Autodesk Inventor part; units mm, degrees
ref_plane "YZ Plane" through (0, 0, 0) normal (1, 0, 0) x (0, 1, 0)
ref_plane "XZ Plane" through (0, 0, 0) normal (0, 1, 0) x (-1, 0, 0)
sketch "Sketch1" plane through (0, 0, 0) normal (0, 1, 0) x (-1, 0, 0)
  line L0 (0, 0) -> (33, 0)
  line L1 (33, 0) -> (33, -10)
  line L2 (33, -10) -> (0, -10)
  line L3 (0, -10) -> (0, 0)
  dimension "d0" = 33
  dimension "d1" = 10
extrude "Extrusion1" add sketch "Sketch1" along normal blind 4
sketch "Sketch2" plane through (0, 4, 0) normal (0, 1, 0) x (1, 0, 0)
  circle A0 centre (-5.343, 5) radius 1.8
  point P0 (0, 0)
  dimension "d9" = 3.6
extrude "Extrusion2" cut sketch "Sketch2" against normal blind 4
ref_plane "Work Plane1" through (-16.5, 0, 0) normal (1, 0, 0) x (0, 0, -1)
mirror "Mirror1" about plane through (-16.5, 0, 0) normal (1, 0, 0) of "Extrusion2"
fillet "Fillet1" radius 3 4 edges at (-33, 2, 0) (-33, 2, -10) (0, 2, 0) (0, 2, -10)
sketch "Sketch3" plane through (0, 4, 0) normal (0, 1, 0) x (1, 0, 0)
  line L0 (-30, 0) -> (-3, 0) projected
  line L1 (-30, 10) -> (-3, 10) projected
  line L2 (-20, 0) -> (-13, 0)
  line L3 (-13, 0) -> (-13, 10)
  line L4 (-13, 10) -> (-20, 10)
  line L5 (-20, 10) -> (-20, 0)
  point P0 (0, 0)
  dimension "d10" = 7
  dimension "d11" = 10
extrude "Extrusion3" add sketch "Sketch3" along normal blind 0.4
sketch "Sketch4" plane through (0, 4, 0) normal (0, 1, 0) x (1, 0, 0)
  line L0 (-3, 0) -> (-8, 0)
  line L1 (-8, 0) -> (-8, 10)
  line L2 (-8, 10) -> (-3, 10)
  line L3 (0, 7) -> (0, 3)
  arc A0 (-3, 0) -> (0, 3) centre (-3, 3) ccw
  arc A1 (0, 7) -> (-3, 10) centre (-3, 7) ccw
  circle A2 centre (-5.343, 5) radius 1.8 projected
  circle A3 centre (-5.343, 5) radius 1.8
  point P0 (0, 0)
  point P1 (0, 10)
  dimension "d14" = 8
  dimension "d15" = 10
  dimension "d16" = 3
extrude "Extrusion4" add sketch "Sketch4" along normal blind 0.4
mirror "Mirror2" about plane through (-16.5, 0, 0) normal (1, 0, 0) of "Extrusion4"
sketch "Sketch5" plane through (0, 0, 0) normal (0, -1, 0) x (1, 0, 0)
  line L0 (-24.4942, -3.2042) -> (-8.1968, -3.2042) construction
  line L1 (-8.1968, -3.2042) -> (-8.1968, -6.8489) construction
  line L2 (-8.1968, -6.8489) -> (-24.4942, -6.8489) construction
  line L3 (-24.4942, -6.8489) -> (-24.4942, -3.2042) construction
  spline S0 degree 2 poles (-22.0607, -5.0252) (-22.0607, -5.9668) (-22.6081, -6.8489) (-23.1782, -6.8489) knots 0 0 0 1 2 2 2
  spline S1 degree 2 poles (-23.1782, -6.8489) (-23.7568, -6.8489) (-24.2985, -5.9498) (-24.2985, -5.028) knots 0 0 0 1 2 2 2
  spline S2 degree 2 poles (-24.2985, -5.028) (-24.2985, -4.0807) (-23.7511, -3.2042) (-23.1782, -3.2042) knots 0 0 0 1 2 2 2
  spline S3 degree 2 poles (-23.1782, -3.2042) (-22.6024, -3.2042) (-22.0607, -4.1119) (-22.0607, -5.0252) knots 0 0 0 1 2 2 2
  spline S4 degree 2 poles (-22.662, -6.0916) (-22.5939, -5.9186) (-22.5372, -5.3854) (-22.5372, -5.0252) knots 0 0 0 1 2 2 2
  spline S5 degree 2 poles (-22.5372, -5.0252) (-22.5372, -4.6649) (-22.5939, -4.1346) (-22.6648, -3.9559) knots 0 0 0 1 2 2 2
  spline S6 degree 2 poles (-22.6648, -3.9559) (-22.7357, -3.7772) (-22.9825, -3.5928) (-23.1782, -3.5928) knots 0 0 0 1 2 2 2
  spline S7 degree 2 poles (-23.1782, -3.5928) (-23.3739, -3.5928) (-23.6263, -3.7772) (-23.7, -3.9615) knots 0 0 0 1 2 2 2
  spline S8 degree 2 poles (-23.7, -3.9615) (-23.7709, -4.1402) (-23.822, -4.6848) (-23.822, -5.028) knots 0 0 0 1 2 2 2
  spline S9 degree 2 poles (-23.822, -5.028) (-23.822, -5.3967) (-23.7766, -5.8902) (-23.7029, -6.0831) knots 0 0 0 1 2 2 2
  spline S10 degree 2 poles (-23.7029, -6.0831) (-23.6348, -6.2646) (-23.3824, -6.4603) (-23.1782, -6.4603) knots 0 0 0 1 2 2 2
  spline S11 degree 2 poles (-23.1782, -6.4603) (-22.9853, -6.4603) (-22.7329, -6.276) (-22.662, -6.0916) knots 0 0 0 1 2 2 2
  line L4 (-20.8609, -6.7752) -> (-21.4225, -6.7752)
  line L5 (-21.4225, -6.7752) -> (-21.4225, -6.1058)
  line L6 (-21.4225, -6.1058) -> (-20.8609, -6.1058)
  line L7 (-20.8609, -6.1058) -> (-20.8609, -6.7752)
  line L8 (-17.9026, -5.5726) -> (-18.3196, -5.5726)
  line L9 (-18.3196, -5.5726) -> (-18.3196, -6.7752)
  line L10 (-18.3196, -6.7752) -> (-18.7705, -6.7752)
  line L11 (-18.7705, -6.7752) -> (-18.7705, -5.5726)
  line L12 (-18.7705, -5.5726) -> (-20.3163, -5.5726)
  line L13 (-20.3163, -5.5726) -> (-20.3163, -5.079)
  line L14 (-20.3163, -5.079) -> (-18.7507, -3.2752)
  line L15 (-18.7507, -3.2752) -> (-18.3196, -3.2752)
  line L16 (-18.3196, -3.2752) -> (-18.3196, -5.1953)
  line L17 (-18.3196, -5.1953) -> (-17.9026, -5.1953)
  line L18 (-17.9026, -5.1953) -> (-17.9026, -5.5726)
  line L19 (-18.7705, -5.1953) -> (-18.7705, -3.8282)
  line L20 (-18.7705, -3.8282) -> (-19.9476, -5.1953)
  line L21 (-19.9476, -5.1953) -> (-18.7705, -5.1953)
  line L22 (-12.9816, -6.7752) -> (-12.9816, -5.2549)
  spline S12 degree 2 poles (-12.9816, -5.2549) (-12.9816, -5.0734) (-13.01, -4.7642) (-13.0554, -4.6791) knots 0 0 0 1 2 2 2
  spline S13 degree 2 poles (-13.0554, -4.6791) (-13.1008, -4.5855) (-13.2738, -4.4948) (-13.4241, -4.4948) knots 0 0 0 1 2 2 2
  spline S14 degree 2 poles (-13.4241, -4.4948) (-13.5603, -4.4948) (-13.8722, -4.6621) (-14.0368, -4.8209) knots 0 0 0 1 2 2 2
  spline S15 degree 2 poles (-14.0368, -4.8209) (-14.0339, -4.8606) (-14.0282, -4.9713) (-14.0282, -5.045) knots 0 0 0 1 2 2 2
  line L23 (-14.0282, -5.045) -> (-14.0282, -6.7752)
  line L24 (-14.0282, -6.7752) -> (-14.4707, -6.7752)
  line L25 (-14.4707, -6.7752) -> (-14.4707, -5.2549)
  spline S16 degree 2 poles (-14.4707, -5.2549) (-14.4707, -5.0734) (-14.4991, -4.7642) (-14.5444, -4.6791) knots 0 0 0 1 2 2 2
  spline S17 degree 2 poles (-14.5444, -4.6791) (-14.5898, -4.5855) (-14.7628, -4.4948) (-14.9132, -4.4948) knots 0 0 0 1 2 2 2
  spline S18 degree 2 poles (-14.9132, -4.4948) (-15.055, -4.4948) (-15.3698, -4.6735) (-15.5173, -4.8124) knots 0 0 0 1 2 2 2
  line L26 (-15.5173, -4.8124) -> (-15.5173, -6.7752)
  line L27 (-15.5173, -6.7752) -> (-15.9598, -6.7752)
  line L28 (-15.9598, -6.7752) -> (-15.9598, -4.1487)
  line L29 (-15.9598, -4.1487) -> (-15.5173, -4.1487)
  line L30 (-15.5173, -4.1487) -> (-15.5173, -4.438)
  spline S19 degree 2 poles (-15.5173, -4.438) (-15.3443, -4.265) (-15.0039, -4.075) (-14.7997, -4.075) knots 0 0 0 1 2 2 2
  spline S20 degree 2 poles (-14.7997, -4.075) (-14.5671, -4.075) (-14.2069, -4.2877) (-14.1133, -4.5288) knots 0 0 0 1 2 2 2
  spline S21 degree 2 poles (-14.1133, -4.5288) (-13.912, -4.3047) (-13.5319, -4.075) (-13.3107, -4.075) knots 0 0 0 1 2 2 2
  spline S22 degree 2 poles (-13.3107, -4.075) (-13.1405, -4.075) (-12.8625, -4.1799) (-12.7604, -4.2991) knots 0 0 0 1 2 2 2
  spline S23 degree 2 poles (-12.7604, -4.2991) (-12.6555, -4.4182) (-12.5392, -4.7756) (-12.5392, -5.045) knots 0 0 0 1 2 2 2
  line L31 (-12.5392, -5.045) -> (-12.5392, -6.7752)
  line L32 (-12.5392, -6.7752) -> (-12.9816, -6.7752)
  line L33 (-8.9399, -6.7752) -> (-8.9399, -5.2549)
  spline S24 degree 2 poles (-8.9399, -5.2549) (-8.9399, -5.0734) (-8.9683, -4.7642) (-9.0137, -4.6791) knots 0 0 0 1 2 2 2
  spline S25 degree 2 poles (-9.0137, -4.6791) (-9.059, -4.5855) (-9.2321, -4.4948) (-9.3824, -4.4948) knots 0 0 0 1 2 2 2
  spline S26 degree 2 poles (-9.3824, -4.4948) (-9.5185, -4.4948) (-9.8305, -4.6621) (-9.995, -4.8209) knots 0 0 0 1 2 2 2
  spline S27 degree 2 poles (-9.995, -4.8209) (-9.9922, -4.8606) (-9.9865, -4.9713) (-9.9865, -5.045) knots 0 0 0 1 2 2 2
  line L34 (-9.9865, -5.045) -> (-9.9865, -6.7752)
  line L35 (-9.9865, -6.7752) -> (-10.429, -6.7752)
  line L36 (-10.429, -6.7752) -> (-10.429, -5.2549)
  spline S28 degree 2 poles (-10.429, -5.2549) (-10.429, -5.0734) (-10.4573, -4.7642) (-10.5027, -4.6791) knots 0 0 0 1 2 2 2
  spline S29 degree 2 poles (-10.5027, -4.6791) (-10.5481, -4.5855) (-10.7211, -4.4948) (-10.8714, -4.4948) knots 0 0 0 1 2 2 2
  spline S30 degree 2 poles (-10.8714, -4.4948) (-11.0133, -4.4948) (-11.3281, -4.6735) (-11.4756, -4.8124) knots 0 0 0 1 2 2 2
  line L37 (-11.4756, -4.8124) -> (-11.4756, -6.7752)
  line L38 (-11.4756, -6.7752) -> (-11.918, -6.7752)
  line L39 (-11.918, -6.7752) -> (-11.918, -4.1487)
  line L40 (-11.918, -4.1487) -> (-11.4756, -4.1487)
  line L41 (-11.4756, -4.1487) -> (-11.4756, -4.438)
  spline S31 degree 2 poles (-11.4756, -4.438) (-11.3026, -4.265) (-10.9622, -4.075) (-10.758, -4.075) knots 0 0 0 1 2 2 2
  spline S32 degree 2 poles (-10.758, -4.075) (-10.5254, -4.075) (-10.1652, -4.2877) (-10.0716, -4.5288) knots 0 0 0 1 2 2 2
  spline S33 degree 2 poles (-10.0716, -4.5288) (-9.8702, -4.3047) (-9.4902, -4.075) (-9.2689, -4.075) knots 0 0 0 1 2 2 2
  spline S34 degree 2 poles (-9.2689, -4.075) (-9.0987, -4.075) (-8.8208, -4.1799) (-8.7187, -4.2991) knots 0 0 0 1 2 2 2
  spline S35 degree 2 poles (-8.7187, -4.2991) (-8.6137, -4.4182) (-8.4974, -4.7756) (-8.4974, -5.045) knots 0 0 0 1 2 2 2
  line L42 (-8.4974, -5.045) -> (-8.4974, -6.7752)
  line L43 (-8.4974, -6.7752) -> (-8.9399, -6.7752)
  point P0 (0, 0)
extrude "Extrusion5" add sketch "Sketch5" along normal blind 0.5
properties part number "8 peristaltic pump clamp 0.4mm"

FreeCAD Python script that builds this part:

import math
import FreeCAD as App
import Part
import Sketcher
from FreeCAD import Vector
Q = App.Units.Quantity


def edges_at(feature, points):
    """Names of the edges that pass closest to the given points."""
    edges = feature.Shape.Edges
    near = lambda p: min(range(len(edges)), key=lambda i: edges[i].distToShape(Part.Vertex(*p))[0])
    return sorted({f"Edge{near(p) + 1}" for p in points})


def add_polygon(sketch, points):
    """Adds a closed chain of lines whose ends are joined by coincident constraints."""
    first, n = sketch.GeometryCount, len(points)
    for a, b in zip(points, points[1:] + points[:1]):
        sketch.addGeometry(Part.LineSegment(App.Vector(*a, 0), App.Vector(*b, 0)), False)
    for i in range(n):
        sketch.addConstraint(Sketcher.Constraint("Coincident", first + i, 2, first + (i + 1) % n, 1))

doc = App.newDocument("Part")
params = doc.addObject("Spreadsheet::Sheet", "Params")
for row, (alias, value) in enumerate([
    ("sketch1_width", "33 mm"),
    ("sketch1_height", "10 mm"),
    ("pad1_length", "4 mm"),
    ("sketch2_diameter", "3.6 mm"),
    ("pocket1_length", "4 mm"),
    ("fillet_radius", "3 mm"),
    ("sketch3_width", "7 mm"),
    ("sketch3_height", "10 mm"),
    ("pad2_length", "0.4 mm"),
    ("sketch4_radius", "3 mm"),
    ("sketch4_height", "10 mm"),
    ("sketch4_diameter", "3.6 mm"),
    ("pad3_length", "0.4 mm"),
    ("sketch5_height", "1.92 mm"),
    ("pad4_length", "0.5 mm"),
], start=1):
    params.set(f"A{row}", alias)
    params.set(f"B{row}", "=" + value)
    params.setAlias(f"B{row}", alias)

body = doc.addObject("PartDesign::Body", "Body")

# Sketch on XZ plane
sketch1 = body.newObject("Sketcher::SketchObject", "Sketch")
sketch1.AttachmentSupport = (doc.getObject("XZ_Plane"), [""])
sketch1.MapMode = "FlatFace"
add_polygon(sketch1, [(-33, 0), (0, 0), (0, -10), (-33, -10)])  # lines 0-3
sketch1.addConstraint([
    Sketcher.Constraint("Horizontal", 0),
    Sketcher.Constraint("Vertical", 1),
    Sketcher.Constraint("Horizontal", 2),
    Sketcher.Constraint("Vertical", 3),
    Sketcher.Constraint("Coincident", 0, 2, -1, 1),
    Sketcher.Constraint("DistanceX", 0, 1, 0, 2, Q("33 mm")),
    Sketcher.Constraint("DistanceY", 1, 2, 1, 1, Q("10 mm")),
])
sketch1.setExpression("Constraints[9]", "Params.sketch1_width")
sketch1.setExpression("Constraints[10]", "Params.sketch1_height")
pad1 = body.newObject("PartDesign::Pad", "Pad")
pad1.Profile = sketch1
pad1.setExpression("Length", "Params.pad1_length")
pad1.Reversed = True

# Sketch on XZ plane
sketch2 = body.newObject("Sketcher::SketchObject", "Sketch001")
sketch2.AttachmentSupport = (doc.getObject("XZ_Plane"), [""])
sketch2.MapMode = "FlatFace"
sketch2.AttachmentOffset = App.Placement(Vector(0, 0, -4), App.Rotation())
sketch2.addGeometry(Part.Circle(Vector(-5.3, -5, 0), Vector(0, 0, 1), 1.8), False)
sketch2.addConstraint([
    Sketcher.Constraint("Diameter", 0, Q("3.6 mm")),
    Sketcher.Constraint("DistanceY", 0, 3, -1, 1, Q("5 mm")),
    Sketcher.Constraint("DistanceX", 0, 3, -1, 1, Q("5.343 mm")),
])
sketch2.setExpression("Constraints[0]", "Params.sketch2_diameter")
pocket1 = body.newObject("PartDesign::Pocket", "Pocket")
pocket1.Profile = sketch2
pocket1.setExpression("Length", "Params.pocket1_length")
pocket1.Reversed = True
doc.recompute()

datumplane = body.newObject("PartDesign::Plane", "DatumPlane")
datumplane.AttachmentSupport = (doc.getObject("YZ_Plane"), [""])
datumplane.MapMode = "FlatFace"
datumplane.AttachmentOffset = App.Placement(Vector(0, 0, -16.5), App.Rotation())
mirrored = body.newObject("PartDesign::Mirrored", "Mirrored")
mirrored.Originals = [pocket1]
mirrored.MirrorPlane = (datumplane, [""])
body.Tip = mirrored
doc.recompute()

fillet = body.newObject("PartDesign::Fillet", "Fillet")
fillet.Base = (mirrored, edges_at(mirrored, [
    (-33, 2, 0),
    (-33, 2, -10),
    (0, 2, 0),
    (0, 2, -10),
]))
fillet.setExpression("Radius", "Params.fillet_radius")

# Sketch on XZ plane
sketch3 = body.newObject("Sketcher::SketchObject", "Sketch002")
sketch3.AttachmentSupport = (doc.getObject("XZ_Plane"), [""])
sketch3.MapMode = "FlatFace"
sketch3.AttachmentOffset = App.Placement(Vector(0, 0, -4), App.Rotation())
add_polygon(sketch3, [(-20, -10), (-20, 0), (-13, 0), (-13, -10)])  # lines 0-3
sketch3.addConstraint([
    Sketcher.Constraint("Vertical", 0),
    Sketcher.Constraint("Horizontal", 1),
    Sketcher.Constraint("Vertical", 2),
    Sketcher.Constraint("Horizontal", 3),
    Sketcher.Constraint("PointOnObject", 0, 2, -1),
    Sketcher.Constraint("DistanceX", 1, 1, 1, 2, Q("7 mm")),
    Sketcher.Constraint("DistanceY", 0, 1, 0, 2, Q("10 mm")),
    Sketcher.Constraint("DistanceX", 0, 2, -1, 1, Q("20 mm")),
])
sketch3.setExpression("Constraints[9]", "Params.sketch3_width")
sketch3.setExpression("Constraints[10]", "Params.sketch3_height")
pad2 = body.newObject("PartDesign::Pad", "Pad001")
pad2.Profile = sketch3
pad2.setExpression("Length", "Params.pad2_length")
pad2.Reversed = True

# Sketch on XZ plane
sketch4 = body.newObject("Sketcher::SketchObject", "Sketch003")
sketch4.AttachmentSupport = (doc.getObject("XZ_Plane"), [""])
sketch4.MapMode = "FlatFace"
sketch4.AttachmentOffset = App.Placement(Vector(0, 0, -4), App.Rotation())
sketch4.addGeometry([
    Part.LineSegment(Vector(-8, 0, 0), Vector(-3, 0, 0)),  # 0
    Part.ArcOfCircle(Part.Circle(Vector(-3, -3, 0), Vector(0, 0, 1), 3), math.radians(0), math.radians(90)),  # 1
    Part.LineSegment(Vector(0, -3, 0), Vector(0, -7, 0)),  # 2
    Part.ArcOfCircle(Part.Circle(Vector(-3, -7, 0), Vector(0, 0, 1), 3), math.radians(-90), math.radians(0)),  # 3
    Part.LineSegment(Vector(-3, -10, 0), Vector(-8, -10, 0)),  # 4
    Part.LineSegment(Vector(-8, -10, 0), Vector(-8, 0, 0)),  # 5
    Part.Circle(Vector(-5.3, -5, 0), Vector(0, 0, 1), 1.8),  # 6
], False)
sketch4.addConstraint([
    Sketcher.Constraint("Tangent", 0, 2, 1, 2),
    Sketcher.Constraint("Tangent", 1, 1, 2, 1),
    Sketcher.Constraint("Tangent", 2, 2, 3, 2),
    Sketcher.Constraint("Tangent", 3, 1, 4, 1),
    Sketcher.Constraint("Coincident", 4, 2, 5, 1),
    Sketcher.Constraint("Coincident", 5, 2, 0, 1),
    Sketcher.Constraint("Horizontal", 0),
    Sketcher.Constraint("Vertical", 2),
    Sketcher.Constraint("Horizontal", 4),
    Sketcher.Constraint("Vertical", 5),
    Sketcher.Constraint("Equal", 1, 3),
    Sketcher.Constraint("PointOnObject", 0, 2, -1),
    Sketcher.Constraint("PointOnObject", 1, 1, -2),
    Sketcher.Constraint("Radius", 1, Q("3 mm")),
    Sketcher.Constraint("DistanceY", 5, 1, 5, 2, Q("10 mm")),
    Sketcher.Constraint("DistanceX", 4, 2, -1, 1, Q("8 mm")),
    Sketcher.Constraint("Diameter", 6, Q("3.6 mm")),
    Sketcher.Constraint("DistanceY", 6, 3, -1, 1, Q("5 mm")),
    Sketcher.Constraint("DistanceX", 6, 3, -1, 1, Q("5.343 mm")),
])
sketch4.setExpression("Constraints[13]", "Params.sketch4_radius")
sketch4.setExpression("Constraints[14]", "Params.sketch4_height")
sketch4.setExpression("Constraints[16]", "Params.sketch4_diameter")
pad3 = body.newObject("PartDesign::Pad", "Pad002")
pad3.Profile = sketch4
pad3.setExpression("Length", "Params.pad3_length")
pad3.Reversed = True
doc.recompute()

datumplane2 = body.newObject("PartDesign::Plane", "DatumPlane001")
datumplane2.AttachmentSupport = (doc.getObject("YZ_Plane"), [""])
datumplane2.MapMode = "FlatFace"
datumplane2.AttachmentOffset = App.Placement(Vector(0, 0, -16.5), App.Rotation())
mirrored2 = body.newObject("PartDesign::Mirrored", "Mirrored001")
mirrored2.Originals = [pad3]
mirrored2.MirrorPlane = (datumplane2, [""])
body.Tip = mirrored2

# Sketch on XZ plane
sketch5 = body.newObject("Sketcher::SketchObject", "Sketch004")
sketch5.AttachmentSupport = (doc.getObject("XZ_Plane"), [""])
sketch5.MapMode = "FlatFace"
sketch5.addGeometry(Part.BSplineCurve([Vector(-22.0607, -5.0252, 0), Vector(-22.0607, -5.9668, 0), Vector(-22.6081, -6.8489, 0), Vector(-23.1782, -6.8489, 0)], [3, 1, 3], [0, 1, 2], False, 2, [1, 1, 1, 1], False), False)  # 0
sketch5.addGeometry(Part.BSplineCurve([Vector(-23.1782, -3.2042, 0), Vector(-22.6024, -3.2042, 0), Vector(-22.0607, -4.1119, 0), Vector(-22.0607, -5.0252, 0)], [3, 1, 3], [0, 1, 2], False, 2, [1, 1, 1, 1], False), False)  # 1
sketch5.addGeometry(Part.BSplineCurve([Vector(-24.2985, -5.028, 0), Vector(-24.2985, -4.0807, 0), Vector(-23.7511, -3.2042, 0), Vector(-23.1782, -3.2042, 0)], [3, 1, 3], [0, 1, 2], False, 2, [1, 1, 1, 1], False), False)  # 2
sketch5.addGeometry(Part.BSplineCurve([Vector(-23.1782, -6.8489, 0), Vector(-23.7568, -6.8489, 0), Vector(-24.2985, -5.9498, 0), Vector(-24.2985, -5.028, 0)], [3, 1, 3], [0, 1, 2], False, 2, [1, 1, 1, 1], False), False)  # 3
sketch5.addGeometry(Part.BSplineCurve([Vector(-22.662, -6.0916, 0), Vector(-22.5939, -5.9186, 0), Vector(-22.5372, -5.3854, 0), Vector(-22.5372, -5.0252, 0)], [3, 1, 3], [0, 1, 2], False, 2, [1, 1, 1, 1], False), False)  # 4
sketch5.addGeometry(Part.BSplineCurve([Vector(-23.1782, -6.4603, 0), Vector(-22.9853, -6.4603, 0), Vector(-22.7329, -6.276, 0), Vector(-22.662, -6.0916, 0)], [3, 1, 3], [0, 1, 2], False, 2, [1, 1, 1, 1], False), False)  # 5
sketch5.addGeometry(Part.BSplineCurve([Vector(-23.7029, -6.0831, 0), Vector(-23.6348, -6.2646, 0), Vector(-23.3824, -6.4603, 0), Vector(-23.1782, -6.4603, 0)], [3, 1, 3], [0, 1, 2], False, 2, [1, 1, 1, 1], False), False)  # 6
sketch5.addGeometry(Part.BSplineCurve([Vector(-23.822, -5.028, 0), Vector(-23.822, -5.3967, 0), Vector(-23.7766, -5.8902, 0), Vector(-23.7029, -6.0831, 0)], [3, 1, 3], [0, 1, 2], False, 2, [1, 1, 1, 1], False), False)  # 7
sketch5.addGeometry(Part.BSplineCurve([Vector(-23.7, -3.9615, 0), Vector(-23.7709, -4.1402, 0), Vector(-23.822, -4.6848, 0), Vector(-23.822, -5.028, 0)], [3, 1, 3], [0, 1, 2], False, 2, [1, 1, 1, 1], False), False)  # 8
sketch5.addGeometry(Part.BSplineCurve([Vector(-23.1782, -3.5928, 0), Vector(-23.3739, -3.5928, 0), Vector(-23.6263, -3.7772, 0), Vector(-23.7, -3.9615, 0)], [3, 1, 3], [0, 1, 2], False, 2, [1, 1, 1, 1], False), False)  # 9
sketch5.addGeometry(Part.BSplineCurve([Vector(-22.6648, -3.9559, 0), Vector(-22.7357, -3.7772, 0), Vector(-22.9825, -3.5928, 0), Vector(-23.1782, -3.5928, 0)], [3, 1, 3], [0, 1, 2], False, 2, [1, 1, 1, 1], False), False)  # 10
sketch5.addGeometry(Part.BSplineCurve([Vector(-22.5372, -5.0252, 0), Vector(-22.5372, -4.6649, 0), Vector(-22.5939, -4.1346, 0), Vector(-22.6648, -3.9559, 0)], [3, 1, 3], [0, 1, 2], False, 2, [1, 1, 1, 1], False), False)  # 11
add_polygon(sketch5, [(-21.4225, -6.7752), (-20.8609, -6.7752), (-20.8609, -6.1058), (-21.4225, -6.1058)])  # lines 12-15
add_polygon(sketch5, [(-18.3196, -5.5726), (-17.9026, -5.5726), (-17.9026, -5.1953), (-18.3196, -5.1953), (-18.3196, -3.2752), (-18.7507, -3.2752), (-20.3163, -5.079), (-20.3163, -5.5726), (-18.7705, -5.5726), (-18.7705, -6.7752), (-18.3196, -6.7752)])  # lines 16-26
add_polygon(sketch5, [(-18.7705, -3.8282), (-18.7705, -5.1953), (-19.9476, -5.1953)])  # lines 27-29
sketch5.addGeometry(Part.LineSegment(Vector(-12.9816, -5.2549, 0), Vector(-12.9816, -6.7752, 0)), False)  # 30
sketch5.addGeometry(Part.LineSegment(Vector(-12.9816, -6.7752, 0), Vector(-12.5392, -6.7752, 0)), False)  # 31
sketch5.addGeometry(Part.LineSegment(Vector(-12.5392, -6.7752, 0), Vector(-12.5392, -5.045, 0)), False)  # 32
sketch5.addGeometry(Part.BSplineCurve([Vector(-12.7604, -4.2991, 0), Vector(-12.6555, -4.4182, 0), Vector(-12.5392, -4.7756, 0), Vector(-12.5392, -5.045, 0)], [3, 1, 3], [0, 1, 2], False, 2, [1, 1, 1, 1], False), False)  # 33
sketch5.addGeometry(Part.BSplineCurve([Vector(-13.3107, -4.075, 0), Vector(-13.1405, -4.075, 0), Vector(-12.8625, -4.1799, 0), Vector(-12.7604, -4.2991, 0)], [3, 1, 3], [0, 1, 2], False, 2, [1, 1, 1, 1], False), False)  # 34
sketch5.addGeometry(Part.BSplineCurve([Vector(-14.1133, -4.5288, 0), Vector(-13.912, -4.3047, 0), Vector(-13.5319, -4.075, 0), Vector(-13.3107, -4.075, 0)], [3, 1, 3], [0, 1, 2], False, 2, [1, 1, 1, 1], False), False)  # 35
sketch5.addGeometry(Part.BSplineCurve([Vector(-14.7997, -4.075, 0), Vector(-14.5671, -4.075, 0), Vector(-14.2069, -4.2877, 0), Vector(-14.1133, -4.5288, 0)], [3, 1, 3], [0, 1, 2], False, 2, [1, 1, 1, 1], False), False)  # 36
sketch5.addGeometry(Part.BSplineCurve([Vector(-15.5173, -4.438, 0), Vector(-15.3443, -4.265, 0), Vector(-15.0039, -4.075, 0), Vector(-14.7997, -4.075, 0)], [3, 1, 3], [0, 1, 2], False, 2, [1, 1, 1, 1], False), False)  # 37
sketch5.addGeometry(Part.LineSegment(Vector(-15.5173, -4.438, 0), Vector(-15.5173, -4.1487, 0)), False)  # 38
sketch5.addGeometry(Part.LineSegment(Vector(-15.5173, -4.1487, 0), Vector(-15.9598, -4.1487, 0)), False)  # 39
sketch5.addGeometry(Part.LineSegment(Vector(-15.9598, -4.1487, 0), Vector(-15.9598, -6.7752, 0)), False)  # 40
sketch5.addGeometry(Part.LineSegment(Vector(-15.9598, -6.7752, 0), Vector(-15.5173, -6.7752, 0)), False)  # 41
sketch5.addGeometry(Part.LineSegment(Vector(-15.5173, -6.7752, 0), Vector(-15.5173, -4.8124, 0)), False)  # 42
sketch5.addGeometry(Part.BSplineCurve([Vector(-14.9132, -4.4948, 0), Vector(-15.055, -4.4948, 0), Vector(-15.3698, -4.6735, 0), Vector(-15.5173, -4.8124, 0)], [3, 1, 3], [0, 1, 2], False, 2, [1, 1, 1, 1], False), False)  # 43
sketch5.addGeometry(Part.BSplineCurve([Vector(-14.5444, -4.6791, 0), Vector(-14.5898, -4.5855, 0), Vector(-14.7628, -4.4948, 0), Vector(-14.9132, -4.4948, 0)], [3, 1, 3], [0, 1, 2], False, 2, [1, 1, 1, 1], False), False)  # 44
sketch5.addGeometry(Part.BSplineCurve([Vector(-14.4707, -5.2549, 0), Vector(-14.4707, -5.0734, 0), Vector(-14.4991, -4.7642, 0), Vector(-14.5444, -4.6791, 0)], [3, 1, 3], [0, 1, 2], False, 2, [1, 1, 1, 1], False), False)  # 45
sketch5.addGeometry(Part.LineSegment(Vector(-14.4707, -5.2549, 0), Vector(-14.4707, -6.7752, 0)), False)  # 46
sketch5.addGeometry(Part.LineSegment(Vector(-14.4707, -6.7752, 0), Vector(-14.0282, -6.7752, 0)), False)  # 47
sketch5.addGeometry(Part.LineSegment(Vector(-14.0282, -6.7752, 0), Vector(-14.0282, -5.045, 0)), False)  # 48
sketch5.addGeometry(Part.BSplineCurve([Vector(-14.0368, -4.8209, 0), Vector(-14.0339, -4.8606, 0), Vector(-14.0282, -4.9713, 0), Vector(-14.0282, -5.045, 0)], [3, 1, 3], [0, 1, 2], False, 2, [1, 1, 1, 1], False), False)  # 49
sketch5.addGeometry(Part.BSplineCurve([Vector(-13.4241, -4.4948, 0), Vector(-13.5603, -4.4948, 0), Vector(-13.8722, -4.6621, 0), Vector(-14.0368, -4.8209, 0)], [3, 1, 3], [0, 1, 2], False, 2, [1, 1, 1, 1], False), False)  # 50
sketch5.addGeometry(Part.BSplineCurve([Vector(-13.0554, -4.6791, 0), Vector(-13.1008, -4.5855, 0), Vector(-13.2738, -4.4948, 0), Vector(-13.4241, -4.4948, 0)], [3, 1, 3], [0, 1, 2], False, 2, [1, 1, 1, 1], False), False)  # 51
sketch5.addGeometry(Part.BSplineCurve([Vector(-12.9816, -5.2549, 0), Vector(-12.9816, -5.0734, 0), Vector(-13.01, -4.7642, 0), Vector(-13.0554, -4.6791, 0)], [3, 1, 3], [0, 1, 2], False, 2, [1, 1, 1, 1], False), False)  # 52
sketch5.addGeometry(Part.LineSegment(Vector(-8.9399, -5.2549, 0), Vector(-8.9399, -6.7752, 0)), False)  # 53
sketch5.addGeometry(Part.LineSegment(Vector(-8.9399, -6.7752, 0), Vector(-8.4974, -6.7752, 0)), False)  # 54
sketch5.addGeometry(Part.LineSegment(Vector(-8.4974, -6.7752, 0), Vector(-8.4974, -5.045, 0)), False)  # 55
sketch5.addGeometry(Part.BSplineCurve([Vector(-8.7187, -4.2991, 0), Vector(-8.6137, -4.4182, 0), Vector(-8.4974, -4.7756, 0), Vector(-8.4974, -5.045, 0)], [3, 1, 3], [0, 1, 2], False, 2, [1, 1, 1, 1], False), False)  # 56
sketch5.addGeometry(Part.BSplineCurve([Vector(-9.2689, -4.075, 0), Vector(-9.0987, -4.075, 0), Vector(-8.8208, -4.1799, 0), Vector(-8.7187, -4.2991, 0)], [3, 1, 3], [0, 1, 2], False, 2, [1, 1, 1, 1], False), False)  # 57
sketch5.addGeometry(Part.BSplineCurve([Vector(-10.0716, -4.5288, 0), Vector(-9.8702, -4.3047, 0), Vector(-9.4902, -4.075, 0), Vector(-9.2689, -4.075, 0)], [3, 1, 3], [0, 1, 2], False, 2, [1, 1, 1, 1], False), False)  # 58
sketch5.addGeometry(Part.BSplineCurve([Vector(-10.758, -4.075, 0), Vector(-10.5254, -4.075, 0), Vector(-10.1652, -4.2877, 0), Vector(-10.0716, -4.5288, 0)], [3, 1, 3], [0, 1, 2], False, 2, [1, 1, 1, 1], False), False)  # 59
sketch5.addGeometry(Part.BSplineCurve([Vector(-11.4756, -4.438, 0), Vector(-11.3026, -4.265, 0), Vector(-10.9622, -4.075, 0), Vector(-10.758, -4.075, 0)], [3, 1, 3], [0, 1, 2], False, 2, [1, 1, 1, 1], False), False)  # 60
sketch5.addGeometry(Part.LineSegment(Vector(-11.4756, -4.438, 0), Vector(-11.4756, -4.1487, 0)), False)  # 61
sketch5.addGeometry(Part.LineSegment(Vector(-11.4756, -4.1487, 0), Vector(-11.918, -4.1487, 0)), False)  # 62
sketch5.addGeometry(Part.LineSegment(Vector(-11.918, -4.1487, 0), Vector(-11.918, -6.7752, 0)), False)  # 63
sketch5.addGeometry(Part.LineSegment(Vector(-11.918, -6.7752, 0), Vector(-11.4756, -6.7752, 0)), False)  # 64
sketch5.addGeometry(Part.LineSegment(Vector(-11.4756, -6.7752, 0), Vector(-11.4756, -4.8124, 0)), False)  # 65
sketch5.addGeometry(Part.BSplineCurve([Vector(-10.8714, -4.4948, 0), Vector(-11.0133, -4.4948, 0), Vector(-11.3281, -4.6735, 0), Vector(-11.4756, -4.8124, 0)], [3, 1, 3], [0, 1, 2], False, 2, [1, 1, 1, 1], False), False)  # 66
sketch5.addGeometry(Part.BSplineCurve([Vector(-10.5027, -4.6791, 0), Vector(-10.5481, -4.5855, 0), Vector(-10.7211, -4.4948, 0), Vector(-10.8714, -4.4948, 0)], [3, 1, 3], [0, 1, 2], False, 2, [1, 1, 1, 1], False), False)  # 67
sketch5.addGeometry(Part.BSplineCurve([Vector(-10.429, -5.2549, 0), Vector(-10.429, -5.0734, 0), Vector(-10.4573, -4.7642, 0), Vector(-10.5027, -4.6791, 0)], [3, 1, 3], [0, 1, 2], False, 2, [1, 1, 1, 1], False), False)  # 68
sketch5.addGeometry(Part.LineSegment(Vector(-10.429, -5.2549, 0), Vector(-10.429, -6.7752, 0)), False)  # 69
sketch5.addGeometry(Part.LineSegment(Vector(-10.429, -6.7752, 0), Vector(-9.9865, -6.7752, 0)), False)  # 70
sketch5.addGeometry(Part.LineSegment(Vector(-9.9865, -6.7752, 0), Vector(-9.9865, -5.045, 0)), False)  # 71
sketch5.addGeometry(Part.BSplineCurve([Vector(-9.995, -4.8209, 0), Vector(-9.9922, -4.8606, 0), Vector(-9.9865, -4.9713, 0), Vector(-9.9865, -5.045, 0)], [3, 1, 3], [0, 1, 2], False, 2, [1, 1, 1, 1], False), False)  # 72
sketch5.addGeometry(Part.BSplineCurve([Vector(-9.3824, -4.4948, 0), Vector(-9.5185, -4.4948, 0), Vector(-9.8305, -4.6621, 0), Vector(-9.995, -4.8209, 0)], [3, 1, 3], [0, 1, 2], False, 2, [1, 1, 1, 1], False), False)  # 73
sketch5.addGeometry(Part.BSplineCurve([Vector(-9.0137, -4.6791, 0), Vector(-9.059, -4.5855, 0), Vector(-9.2321, -4.4948, 0), Vector(-9.3824, -4.4948, 0)], [3, 1, 3], [0, 1, 2], False, 2, [1, 1, 1, 1], False), False)  # 74
sketch5.addGeometry(Part.BSplineCurve([Vector(-8.9399, -5.2549, 0), Vector(-8.9399, -5.0734, 0), Vector(-8.9683, -4.7642, 0), Vector(-9.0137, -4.6791, 0)], [3, 1, 3], [0, 1, 2], False, 2, [1, 1, 1, 1], False), False)  # 75
sketch5.addConstraint([
    Sketcher.Constraint("Block", 0),
    Sketcher.Constraint("Block", 1),
    Sketcher.Constraint("Block", 2),
    Sketcher.Constraint("Block", 3),
    Sketcher.Constraint("Block", 4),
    Sketcher.Constraint("Block", 5),
    Sketcher.Constraint("Block", 6),
    Sketcher.Constraint("Block", 7),
    Sketcher.Constraint("Block", 8),
    Sketcher.Constraint("Block", 9),
    Sketcher.Constraint("Block", 10),
    Sketcher.Constraint("Block", 11),
    Sketcher.Constraint("Block", 33),
    Sketcher.Constraint("Block", 34),
    Sketcher.Constraint("Block", 35),
    Sketcher.Constraint("Block", 36),
    Sketcher.Constraint("Block", 37),
    Sketcher.Constraint("Block", 43),
    Sketcher.Constraint("Block", 44),
    Sketcher.Constraint("Block", 45),
    Sketcher.Constraint("Block", 49),
    Sketcher.Constraint("Block", 50),
    Sketcher.Constraint("Block", 51),
    Sketcher.Constraint("Block", 52),
    Sketcher.Constraint("Block", 56),
    Sketcher.Constraint("Block", 57),
    Sketcher.Constraint("Block", 58),
    Sketcher.Constraint("Block", 59),
    Sketcher.Constraint("Block", 60),
    Sketcher.Constraint("Block", 66),
    Sketcher.Constraint("Block", 67),
    Sketcher.Constraint("Block", 68),
    Sketcher.Constraint("Block", 72),
    Sketcher.Constraint("Block", 73),
    Sketcher.Constraint("Block", 74),
    Sketcher.Constraint("Block", 75),
    Sketcher.Constraint("Coincident", 30, 2, 31, 1),
    Sketcher.Constraint("Coincident", 31, 2, 32, 1),
    Sketcher.Constraint("Coincident", 32, 2, 33, 2),
    Sketcher.Constraint("Coincident", 37, 1, 38, 1),
    Sketcher.Constraint("Coincident", 38, 2, 39, 1),
    Sketcher.Constraint("Coincident", 39, 2, 40, 1),
    Sketcher.Constraint("Coincident", 40, 2, 41, 1),
    Sketcher.Constraint("Coincident", 41, 2, 42, 1),
    Sketcher.Constraint("Coincident", 42, 2, 43, 2),
    Sketcher.Constraint("Coincident", 45, 1, 46, 1),
    Sketcher.Constraint("Coincident", 46, 2, 47, 1),
    Sketcher.Constraint("Coincident", 47, 2, 48, 1),
    Sketcher.Constraint("Coincident", 48, 2, 49, 2),
    Sketcher.Constraint("Coincident", 52, 1, 30, 1),
    Sketcher.Constraint("Coincident", 53, 2, 54, 1),
    Sketcher.Constraint("Coincident", 54, 2, 55, 1),
    Sketcher.Constraint("Coincident", 55, 2, 56, 2),
    Sketcher.Constraint("Coincident", 60, 1, 61, 1),
    Sketcher.Constraint("Coincident", 61, 2, 62, 1),
    Sketcher.Constraint("Coincident", 62, 2, 63, 1),
    Sketcher.Constraint("Coincident", 63, 2, 64, 1),
    Sketcher.Constraint("Coincident", 64, 2, 65, 1),
    Sketcher.Constraint("Coincident", 65, 2, 66, 2),
    Sketcher.Constraint("Coincident", 68, 1, 69, 1),
    Sketcher.Constraint("Coincident", 69, 2, 70, 1),
    Sketcher.Constraint("Coincident", 70, 2, 71, 1),
    Sketcher.Constraint("Coincident", 71, 2, 72, 2),
    Sketcher.Constraint("Coincident", 75, 1, 53, 1),
    Sketcher.Constraint("Horizontal", 12),
    Sketcher.Constraint("Vertical", 13),
    Sketcher.Constraint("Horizontal", 14),
    Sketcher.Constraint("Vertical", 15),
    Sketcher.Constraint("Horizontal", 16),
    Sketcher.Constraint("Vertical", 17),
    Sketcher.Constraint("Horizontal", 18),
    Sketcher.Constraint("Vertical", 19),
    Sketcher.Constraint("Horizontal", 20),
    Sketcher.Constraint("Vertical", 22),
    Sketcher.Constraint("Horizontal", 23),
    Sketcher.Constraint("Vertical", 24),
    Sketcher.Constraint("Horizontal", 25),
    Sketcher.Constraint("Vertical", 26),
    Sketcher.Constraint("Vertical", 27),
    Sketcher.Constraint("Horizontal", 28),
    Sketcher.Constraint("Vertical", 30),
    Sketcher.Constraint("Horizontal", 31),
    Sketcher.Constraint("Vertical", 32),
    Sketcher.Constraint("Vertical", 38),
    Sketcher.Constraint("Horizontal", 39),
    Sketcher.Constraint("Vertical", 40),
    Sketcher.Constraint("Horizontal", 41),
    Sketcher.Constraint("Vertical", 42),
    Sketcher.Constraint("Vertical", 46),
    Sketcher.Constraint("Horizontal", 47),
    Sketcher.Constraint("Vertical", 48),
    Sketcher.Constraint("Vertical", 53),
    Sketcher.Constraint("Horizontal", 54),
    Sketcher.Constraint("Vertical", 55),
    Sketcher.Constraint("Vertical", 61),
    Sketcher.Constraint("Horizontal", 62),
    Sketcher.Constraint("Vertical", 63),
    Sketcher.Constraint("Horizontal", 64),
    Sketcher.Constraint("Vertical", 65),
    Sketcher.Constraint("Vertical", 69),
    Sketcher.Constraint("Horizontal", 70),
    Sketcher.Constraint("Vertical", 71),
    Sketcher.Constraint("DistanceY", 19, 1, 19, 2, Q("1.92 mm")),
    Sketcher.Constraint("DistanceX", 16, 1, 16, 2, Q("0.417 mm")),
    Sketcher.Constraint("DistanceX", 18, 2, 18, 1, Q("0.417 mm")),
    Sketcher.Constraint("DistanceX", 20, 2, 20, 1, Q("0.431 mm")),
    Sketcher.Constraint("DistanceX", 25, 1, 25, 2, Q("0.451 mm")),
    Sketcher.Constraint("DistanceX", 28, 2, 28, 1, Q("1.177 mm")),
    Sketcher.Constraint("DistanceY", 27, 2, 27, 1, Q("1.367 mm")),
    Sketcher.Constraint("DistanceX", 14, 2, 16, 2, Q("3.52 mm")),
    Sketcher.Constraint("DistanceY", 12, 2, 17, 2, Q("1.58 mm")),
    Sketcher.Constraint("DistanceY", 24, 2, 18, 2, Q("1.58 mm")),
    Sketcher.Constraint("DistanceY", 30, 2, 17, 2, Q("1.58 mm")),
    Sketcher.Constraint("DistanceY", 40, 2, 17, 2, Q("1.58 mm")),
    Sketcher.Constraint("DistanceX", 12, 1, 12, 2, Q("0.5616 mm")),
    Sketcher.Constraint("DistanceX", 23, 1, 23, 2, Q("1.5458 mm")),
    Sketcher.Constraint("DistanceX", 39, 2, 39, 1, Q("0.4425 mm")),
    Sketcher.Constraint("DistanceX", 62, 2, 62, 1, Q("0.4424 mm")),
    Sketcher.Constraint("DistanceY", 13, 1, 13, 2, Q("0.6694 mm")),
    Sketcher.Constraint("DistanceY", 17, 1, 17, 2, Q("0.3773 mm")),
    Sketcher.Constraint("DistanceY", 22, 2, 22, 1, Q("0.4936 mm")),
    Sketcher.Constraint("DistanceY", 24, 2, 24, 1, Q("1.2026 mm")),
    Sketcher.Constraint("DistanceY", 30, 2, 30, 1, Q("1.5203 mm")),
    Sketcher.Constraint("DistanceY", 38, 1, 38, 2, Q("0.2893 mm")),
    Sketcher.Constraint("DistanceY", 46, 2, 46, 1, Q("1.5203 mm")),
    Sketcher.Constraint("DistanceY", 53, 2, 53, 1, Q("1.5203 mm")),
    Sketcher.Constraint("DistanceY", 61, 1, 61, 2, Q("0.2893 mm")),
    Sketcher.Constraint("DistanceY", 63, 2, 63, 1, Q("2.6265 mm")),
    Sketcher.Constraint("DistanceY", 69, 2, 69, 1, Q("1.5203 mm")),
    Sketcher.Constraint("DistanceX", 12, 2, -1, 1, Q("20.861 mm")),
    Sketcher.Constraint("DistanceX", 27, 2, 18, 2, Q("0.451 mm")),
    Sketcher.Constraint("DistanceY", 29, 2, 20, 2, Q("0.553 mm")),
])
sketch5.setExpression("Constraints[120]", "Params.sketch5_height")
pad4 = body.newObject("PartDesign::Pad", "Pad003")
pad4.Profile = sketch5
pad4.setExpression("Length", "Params.pad4_length")

doc.recompute()
